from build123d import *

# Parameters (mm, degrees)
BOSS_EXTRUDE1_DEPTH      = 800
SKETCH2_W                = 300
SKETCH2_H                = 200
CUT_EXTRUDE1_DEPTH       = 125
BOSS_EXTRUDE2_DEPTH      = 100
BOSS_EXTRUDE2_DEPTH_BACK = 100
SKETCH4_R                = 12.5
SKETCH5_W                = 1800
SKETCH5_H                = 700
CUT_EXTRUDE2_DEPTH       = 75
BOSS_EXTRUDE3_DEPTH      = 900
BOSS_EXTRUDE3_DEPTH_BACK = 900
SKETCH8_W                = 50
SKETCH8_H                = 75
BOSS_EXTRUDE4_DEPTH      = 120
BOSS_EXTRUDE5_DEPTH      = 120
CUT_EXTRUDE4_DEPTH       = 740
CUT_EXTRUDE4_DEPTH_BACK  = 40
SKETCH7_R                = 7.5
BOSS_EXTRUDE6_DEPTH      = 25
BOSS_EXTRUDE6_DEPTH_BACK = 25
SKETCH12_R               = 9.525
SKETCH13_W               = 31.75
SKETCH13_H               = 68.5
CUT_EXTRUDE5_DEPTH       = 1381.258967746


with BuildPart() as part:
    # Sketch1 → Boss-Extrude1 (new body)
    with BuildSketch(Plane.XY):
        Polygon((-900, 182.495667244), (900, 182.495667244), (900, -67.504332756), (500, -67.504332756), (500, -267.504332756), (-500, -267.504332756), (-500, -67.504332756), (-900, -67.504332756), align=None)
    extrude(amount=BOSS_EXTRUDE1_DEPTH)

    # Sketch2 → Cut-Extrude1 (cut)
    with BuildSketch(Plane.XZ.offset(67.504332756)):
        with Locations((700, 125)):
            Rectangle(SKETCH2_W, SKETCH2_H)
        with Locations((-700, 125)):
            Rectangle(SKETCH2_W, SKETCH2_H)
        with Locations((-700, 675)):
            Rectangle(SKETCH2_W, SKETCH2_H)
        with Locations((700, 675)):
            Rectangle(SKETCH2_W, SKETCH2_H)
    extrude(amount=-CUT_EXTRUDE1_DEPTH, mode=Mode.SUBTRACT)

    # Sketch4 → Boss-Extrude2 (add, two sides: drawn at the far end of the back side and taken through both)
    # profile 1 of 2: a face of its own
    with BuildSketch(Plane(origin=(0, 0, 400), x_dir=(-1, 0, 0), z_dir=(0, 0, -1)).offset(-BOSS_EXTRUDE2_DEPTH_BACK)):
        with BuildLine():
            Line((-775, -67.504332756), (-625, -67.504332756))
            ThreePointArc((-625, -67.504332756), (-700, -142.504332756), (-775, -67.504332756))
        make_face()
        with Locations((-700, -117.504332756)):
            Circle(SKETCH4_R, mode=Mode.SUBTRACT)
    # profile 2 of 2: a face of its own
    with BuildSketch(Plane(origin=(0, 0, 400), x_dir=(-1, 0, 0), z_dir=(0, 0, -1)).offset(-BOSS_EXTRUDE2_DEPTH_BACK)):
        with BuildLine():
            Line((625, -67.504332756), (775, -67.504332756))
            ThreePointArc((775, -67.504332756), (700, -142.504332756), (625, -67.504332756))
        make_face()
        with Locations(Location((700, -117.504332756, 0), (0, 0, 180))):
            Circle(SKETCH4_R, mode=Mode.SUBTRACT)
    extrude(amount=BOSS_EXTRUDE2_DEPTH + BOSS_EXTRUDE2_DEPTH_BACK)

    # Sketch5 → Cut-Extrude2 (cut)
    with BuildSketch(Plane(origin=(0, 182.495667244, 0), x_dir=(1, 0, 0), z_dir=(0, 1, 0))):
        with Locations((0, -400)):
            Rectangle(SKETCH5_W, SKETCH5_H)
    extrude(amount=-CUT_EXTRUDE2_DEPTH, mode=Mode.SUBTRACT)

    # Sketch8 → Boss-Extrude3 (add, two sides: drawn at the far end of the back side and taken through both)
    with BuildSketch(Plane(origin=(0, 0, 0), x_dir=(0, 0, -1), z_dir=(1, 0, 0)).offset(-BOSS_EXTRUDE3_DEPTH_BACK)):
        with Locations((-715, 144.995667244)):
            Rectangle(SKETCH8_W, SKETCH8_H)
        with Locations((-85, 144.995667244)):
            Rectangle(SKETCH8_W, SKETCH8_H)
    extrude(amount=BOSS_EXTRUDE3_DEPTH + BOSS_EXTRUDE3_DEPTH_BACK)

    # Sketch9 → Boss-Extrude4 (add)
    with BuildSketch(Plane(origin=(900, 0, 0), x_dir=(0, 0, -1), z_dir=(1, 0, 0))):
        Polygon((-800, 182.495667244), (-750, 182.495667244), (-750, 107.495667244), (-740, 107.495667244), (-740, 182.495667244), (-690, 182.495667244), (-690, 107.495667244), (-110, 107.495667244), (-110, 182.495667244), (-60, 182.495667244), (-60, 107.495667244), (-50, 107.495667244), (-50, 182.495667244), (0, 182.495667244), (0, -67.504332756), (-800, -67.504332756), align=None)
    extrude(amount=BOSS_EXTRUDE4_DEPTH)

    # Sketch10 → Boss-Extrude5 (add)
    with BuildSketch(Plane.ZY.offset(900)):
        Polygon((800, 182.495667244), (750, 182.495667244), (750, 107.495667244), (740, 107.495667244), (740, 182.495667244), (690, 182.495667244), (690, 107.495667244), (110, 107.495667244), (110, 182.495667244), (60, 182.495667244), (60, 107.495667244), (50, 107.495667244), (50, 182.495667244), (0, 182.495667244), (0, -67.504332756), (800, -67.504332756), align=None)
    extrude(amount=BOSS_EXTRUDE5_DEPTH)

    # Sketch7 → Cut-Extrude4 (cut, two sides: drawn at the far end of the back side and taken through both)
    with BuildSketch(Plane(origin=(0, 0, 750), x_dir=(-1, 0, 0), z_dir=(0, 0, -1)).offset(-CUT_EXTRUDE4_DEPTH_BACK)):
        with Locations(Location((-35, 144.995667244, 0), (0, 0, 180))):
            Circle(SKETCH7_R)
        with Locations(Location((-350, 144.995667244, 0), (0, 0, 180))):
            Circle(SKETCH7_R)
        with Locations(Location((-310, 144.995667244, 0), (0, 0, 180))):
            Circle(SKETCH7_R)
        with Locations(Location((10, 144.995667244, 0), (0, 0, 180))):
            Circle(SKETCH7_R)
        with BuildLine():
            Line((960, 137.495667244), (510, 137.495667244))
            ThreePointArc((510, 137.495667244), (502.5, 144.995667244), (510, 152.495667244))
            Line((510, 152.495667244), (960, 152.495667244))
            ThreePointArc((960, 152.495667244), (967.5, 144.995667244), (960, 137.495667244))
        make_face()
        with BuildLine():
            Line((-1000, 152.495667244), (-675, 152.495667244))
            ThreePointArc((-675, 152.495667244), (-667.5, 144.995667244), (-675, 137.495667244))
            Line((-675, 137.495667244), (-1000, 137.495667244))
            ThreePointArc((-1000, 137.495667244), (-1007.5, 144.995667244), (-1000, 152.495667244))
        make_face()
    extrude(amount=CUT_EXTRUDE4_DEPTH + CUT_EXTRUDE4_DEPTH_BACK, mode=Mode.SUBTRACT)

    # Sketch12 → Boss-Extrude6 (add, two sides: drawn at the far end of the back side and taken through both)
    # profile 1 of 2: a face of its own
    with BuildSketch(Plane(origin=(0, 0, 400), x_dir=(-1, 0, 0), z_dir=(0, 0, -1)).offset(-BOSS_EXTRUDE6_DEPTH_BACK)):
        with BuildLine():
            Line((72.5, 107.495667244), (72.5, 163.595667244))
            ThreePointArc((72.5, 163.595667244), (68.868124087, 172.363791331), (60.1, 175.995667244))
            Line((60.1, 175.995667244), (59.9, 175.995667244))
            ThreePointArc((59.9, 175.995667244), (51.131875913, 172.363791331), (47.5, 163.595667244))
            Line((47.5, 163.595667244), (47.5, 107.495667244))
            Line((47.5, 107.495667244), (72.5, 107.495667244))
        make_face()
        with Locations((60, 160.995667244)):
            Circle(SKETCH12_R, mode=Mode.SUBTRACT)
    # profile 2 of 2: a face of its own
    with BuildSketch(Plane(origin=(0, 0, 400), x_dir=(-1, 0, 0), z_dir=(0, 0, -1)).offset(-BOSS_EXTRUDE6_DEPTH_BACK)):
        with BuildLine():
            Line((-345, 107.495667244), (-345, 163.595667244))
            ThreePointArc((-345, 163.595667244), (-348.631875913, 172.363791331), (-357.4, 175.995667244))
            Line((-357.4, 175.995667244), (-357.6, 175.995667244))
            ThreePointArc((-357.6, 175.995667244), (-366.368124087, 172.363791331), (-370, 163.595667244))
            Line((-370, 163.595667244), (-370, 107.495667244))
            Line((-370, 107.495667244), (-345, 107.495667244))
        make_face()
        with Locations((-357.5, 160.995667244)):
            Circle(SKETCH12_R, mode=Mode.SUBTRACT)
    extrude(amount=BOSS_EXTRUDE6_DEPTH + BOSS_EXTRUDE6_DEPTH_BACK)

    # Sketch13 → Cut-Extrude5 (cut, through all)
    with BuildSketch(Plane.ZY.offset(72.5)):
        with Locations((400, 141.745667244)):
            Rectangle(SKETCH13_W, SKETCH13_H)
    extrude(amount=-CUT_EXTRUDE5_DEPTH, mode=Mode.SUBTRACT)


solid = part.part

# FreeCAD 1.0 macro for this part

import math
import FreeCAD as App
import Part
import Sketcher
from FreeCAD import Vector
Q = App.Units.Quantity

doc = App.newDocument("Part")
body = doc.addObject("PartDesign::Body", "Body")

# Sketch on XY plane
sketch1 = doc.addObject("Sketcher::SketchObject", "Sketch")
body.addObject(sketch1)
sketch1.AttachmentSupport = (doc.XY_Plane, [""])
sketch1.MapMode = "FlatFace"
sketch1.addGeometry(Part.LineSegment(Vector(900, 182, 0), Vector(-900, 182, 0)), False)
sketch1.addGeometry(Part.LineSegment(Vector(-900, 182, 0), Vector(-900, -68, 0)), False)
sketch1.addGeometry(Part.LineSegment(Vector(-900, -68, 0), Vector(-500, -68, 0)), False)
sketch1.addGeometry(Part.LineSegment(Vector(-500, -68, 0), Vector(-500, -268, 0)), False)
sketch1.addGeometry(Part.LineSegment(Vector(-500, -268, 0), Vector(500, -268, 0)), False)
sketch1.addGeometry(Part.LineSegment(Vector(500, -268, 0), Vector(500, -68, 0)), False)
sketch1.addGeometry(Part.LineSegment(Vector(500, -68, 0), Vector(900, -68, 0)), False)
sketch1.addGeometry(Part.LineSegment(Vector(900, -68, 0), Vector(900, 182, 0)), False)
sketch1.addConstraint(Sketcher.Constraint("Coincident", 0, 2, 1, 1))
sketch1.addConstraint(Sketcher.Constraint("Coincident", 1, 2, 2, 1))
sketch1.addConstraint(Sketcher.Constraint("Coincident", 2, 2, 3, 1))
sketch1.addConstraint(Sketcher.Constraint("Coincident", 3, 2, 4, 1))
sketch1.addConstraint(Sketcher.Constraint("Coincident", 4, 2, 5, 1))
sketch1.addConstraint(Sketcher.Constraint("Coincident", 5, 2, 6, 1))
sketch1.addConstraint(Sketcher.Constraint("Coincident", 6, 2, 7, 1))
sketch1.addConstraint(Sketcher.Constraint("Coincident", 7, 2, 0, 1))
sketch1.addConstraint(Sketcher.Constraint("Horizontal", 0))
sketch1.addConstraint(Sketcher.Constraint("Vertical", 1))
sketch1.addConstraint(Sketcher.Constraint("Horizontal", 2))
sketch1.addConstraint(Sketcher.Constraint("Vertical", 3))
sketch1.addConstraint(Sketcher.Constraint("Horizontal", 4))
sketch1.addConstraint(Sketcher.Constraint("Vertical", 5))
sketch1.addConstraint(Sketcher.Constraint("Horizontal", 6))
sketch1.addConstraint(Sketcher.Constraint("Vertical", 7))
sketch1.addConstraint(Sketcher.Constraint("Symmetric", 2, 2, 5, 2, -2))
sketch1.addConstraint(Sketcher.Constraint("Equal", 2, 6))
sketch1.addConstraint(Sketcher.Constraint("DistanceX", 0, 2, 0, 1, Q("1800 mm")))
sketch1.addConstraint(Sketcher.Constraint("DistanceX", 2, 1, 2, 2, Q("400 mm")))
sketch1.addConstraint(Sketcher.Constraint("DistanceY", 1, 2, 1, 1, Q("250 mm")))
sketch1.addConstraint(Sketcher.Constraint("DistanceY", 3, 2, 3, 1, Q("200 mm")))
sketch1.addConstraint(Sketcher.Constraint("DistanceY", -1, 1, 0, 2, Q("182.495667 mm")))
pad1 = doc.addObject("PartDesign::Pad", "Pad")
body.addObject(pad1)
pad1.Profile = sketch1
pad1.Length = 800

# Sketch on XZ plane
sketch2 = doc.addObject("Sketcher::SketchObject", "Sketch001")
body.addObject(sketch2)
sketch2.AttachmentSupport = (doc.XZ_Plane, [""])
sketch2.MapMode = "FlatFace"
sketch2.AttachmentOffset = App.Placement(Vector(0, 0, 67.504333), App.Rotation())
sketch2.addGeometry(Part.LineSegment(Vector(550, 225, 0), Vector(550, 25, 0)), False)
sketch2.addGeometry(Part.LineSegment(Vector(550, 25, 0), Vector(850, 25, 0)), False)
sketch2.addGeometry(Part.LineSegment(Vector(850, 25, 0), Vector(850, 225, 0)), False)
sketch2.addGeometry(Part.LineSegment(Vector(850, 225, 0), Vector(550, 225, 0)), False)
sketch2.addGeometry(Part.LineSegment(Vector(-850, 225, 0), Vector(-850, 25, 0)), False)
sketch2.addGeometry(Part.LineSegment(Vector(-850, 25, 0), Vector(-550, 25, 0)), False)
sketch2.addGeometry(Part.LineSegment(Vector(-550, 25, 0), Vector(-550, 225, 0)), False)
sketch2.addGeometry(Part.LineSegment(Vector(-550, 225, 0), Vector(-850, 225, 0)), False)
sketch2.addGeometry(Part.LineSegment(Vector(-850, 775, 0), Vector(-850, 575, 0)), False)
sketch2.addGeometry(Part.LineSegment(Vector(-850, 575, 0), Vector(-550, 575, 0)), False)
sketch2.addGeometry(Part.LineSegment(Vector(-550, 575, 0), Vector(-550, 775, 0)), False)
sketch2.addGeometry(Part.LineSegment(Vector(-550, 775, 0), Vector(-850, 775, 0)), False)
sketch2.addGeometry(Part.LineSegment(Vector(550, 775, 0), Vector(550, 575, 0)), False)
sketch2.addGeometry(Part.LineSegment(Vector(550, 575, 0), Vector(850, 575, 0)), False)
sketch2.addGeometry(Part.LineSegment(Vector(850, 575, 0), Vector(850, 775, 0)), False)
sketch2.addGeometry(Part.LineSegment(Vector(850, 775, 0), Vector(550, 775, 0)), False)
sketch2.addConstraint(Sketcher.Constraint("Coincident", 0, 2, 1, 1))
sketch2.addConstraint(Sketcher.Constraint("Coincident", 1, 2, 2, 1))
sketch2.addConstraint(Sketcher.Constraint("Coincident", 2, 2, 3, 1))
sketch2.addConstraint(Sketcher.Constraint("Coincident", 3, 2, 0, 1))
sketch2.addConstraint(Sketcher.Constraint("Coincident", 4, 2, 5, 1))
sketch2.addConstraint(Sketcher.Constraint("Coincident", 5, 2, 6, 1))
sketch2.addConstraint(Sketcher.Constraint("Coincident", 6, 2, 7, 1))
sketch2.addConstraint(Sketcher.Constraint("Coincident", 7, 2, 4, 1))
sketch2.addConstraint(Sketcher.Constraint("Coincident", 8, 2, 9, 1))
sketch2.addConstraint(Sketcher.Constraint("Coincident", 9, 2, 10, 1))
sketch2.addConstraint(Sketcher.Constraint("Coincident", 10, 2, 11, 1))
sketch2.addConstraint(Sketcher.Constraint("Coincident", 11, 2, 8, 1))
sketch2.addConstraint(Sketcher.Constraint("Coincident", 12, 2, 13, 1))
sketch2.addConstraint(Sketcher.Constraint("Coincident", 13, 2, 14, 1))
sketch2.addConstraint(Sketcher.Constraint("Coincident", 14, 2, 15, 1))
sketch2.addConstraint(Sketcher.Constraint("Coincident", 15, 2, 12, 1))
sketch2.addConstraint(Sketcher.Constraint("Vertical", 0))
sketch2.addConstraint(Sketcher.Constraint("Horizontal", 1))
sketch2.addConstraint(Sketcher.Constraint("Vertical", 2))
sketch2.addConstraint(Sketcher.Constraint("Horizontal", 3))
sketch2.addConstraint(Sketcher.Constraint("Vertical", 4))
sketch2.addConstraint(Sketcher.Constraint("Horizontal", 5))
sketch2.addConstraint(Sketcher.Constraint("Vertical", 6))
sketch2.addConstraint(Sketcher.Constraint("Horizontal", 7))
sketch2.addConstraint(Sketcher.Constraint("Vertical", 8))
sketch2.addConstraint(Sketcher.Constraint("Horizontal", 9))
sketch2.addConstraint(Sketcher.Constraint("Vertical", 10))
sketch2.addConstraint(Sketcher.Constraint("Horizontal", 11))
sketch2.addConstraint(Sketcher.Constraint("Vertical", 12))
sketch2.addConstraint(Sketcher.Constraint("Horizontal", 13))
sketch2.addConstraint(Sketcher.Constraint("Vertical", 14))
sketch2.addConstraint(Sketcher.Constraint("Horizontal", 15))
sketch2.addConstraint(Sketcher.Constraint("Symmetric", 1, 2, 4, 2, -2))
sketch2.addConstraint(Sketcher.Constraint("Symmetric", 3, 2, 6, 2, -2))
sketch2.addConstraint(Sketcher.Constraint("Symmetric", 9, 2, 12, 2, -2))
sketch2.addConstraint(Sketcher.Constraint("Symmetric", 11, 2, 14, 2, -2))
sketch2.addConstraint(Sketcher.Constraint("Vertical", 7, 2, 8, 2))
sketch2.addConstraint(Sketcher.Constraint("Vertical", 6, 2, 9, 2))
sketch2.addConstraint(Sketcher.Constraint("Equal", 6, 8))
sketch2.addConstraint(Sketcher.Constraint("DistanceX", 1, 1, 1, 2, Q("300 mm")))
sketch2.addConstraint(Sketcher.Constraint("DistanceY", 0, 2, 0, 1, Q("200 mm")))
sketch2.addConstraint(Sketcher.Constraint("DistanceX", -1, 1, 0, 2, Q("550 mm")))
sketch2.addConstraint(Sketcher.Constraint("DistanceY", -1, 1, 0, 2, Q("25 mm")))
sketch2.addConstraint(Sketcher.Constraint("DistanceY", -1, 1, 8, 2, Q("575 mm")))
pocket1 = doc.addObject("PartDesign::Pocket", "Pocket")
body.addObject(pocket1)
pocket1.Profile = sketch2
pocket1.Length = 125

# Sketch on XY plane
sketch3 = doc.addObject("Sketcher::SketchObject", "Sketch002")
body.addObject(sketch3)
sketch3.AttachmentSupport = (doc.XY_Plane, [""])
sketch3.MapMode = "FlatFace"
sketch3.AttachmentOffset = App.Placement(Vector(0, 0, 400), App.Rotation())
sketch3.addGeometry(Part.LineSegment(Vector(625, -68, 0), Vector(775, -68, 0)), False)
sketch3.addGeometry(Part.ArcOfCircle(Part.Circle(Vector(700, -68, 0), Vector(0, 0, 1), 75), math.radians(180), math.radians(360)), False)
sketch3.addGeometry(Part.Circle(Vector(700, -118, 0), Vector(0, 0, 1), 12), False)
sketch3.addGeometry(Part.LineSegment(Vector(-775, -68, 0), Vector(-625, -68, 0)), False)
sketch3.addGeometry(Part.ArcOfCircle(Part.Circle(Vector(-700, -68, 0), Vector(0, 0, 1), 75), math.radians(180), math.radians(360)), False)
sketch3.addGeometry(Part.Circle(Vector(-700, -118, 0), Vector(0, 0, 1), 12), False)
sketch3.addConstraint(Sketcher.Constraint("Coincident", 0, 1, 1, 1))
sketch3.addConstraint(Sketcher.Constraint("Coincident", 1, 2, 0, 2))
sketch3.addConstraint(Sketcher.Constraint("Coincident", 3, 1, 4, 1))
sketch3.addConstraint(Sketcher.Constraint("Coincident", 4, 2, 3, 2))
sketch3.addConstraint(Sketcher.Constraint("Horizontal", 0))
sketch3.addConstraint(Sketcher.Constraint("Horizontal", 3))
sketch3.addConstraint(Sketcher.Constraint("Equal", 1, 4))
sketch3.addConstraint(Sketcher.Constraint("Equal", 2, 5))
sketch3.addConstraint(Sketcher.Constraint("Symmetric", 1, 3, 4, 3, -2))
sketch3.addConstraint(Sketcher.Constraint("Symmetric", 2, 3, 5, 3, -2))
sketch3.addConstraint(Sketcher.Constraint("Horizontal", 4, 3, 0, 1))
sketch3.addConstraint(Sketcher.Constraint("Horizontal", 1, 2, 3, 1))
sketch3.addConstraint(Sketcher.Constraint("Vertical", 1, 3, 2, 3))
sketch3.addConstraint(Sketcher.Constraint("Diameter", 2, Q("25 mm")))
sketch3.addConstraint(Sketcher.Constraint("Radius", 1, Q("75 mm")))
sketch3.addConstraint(Sketcher.Constraint("DistanceX", -1, 1, 1, 3, Q("700 mm")))
sketch3.addConstraint(Sketcher.Constraint("DistanceY", 2, 3, 1, 3, Q("50 mm")))
sketch3.addConstraint(Sketcher.Constraint("DistanceY", 1, 3, -1, 1, Q("67.504333 mm")))
pad2 = doc.addObject("PartDesign::Pad", "Pad001")
body.addObject(pad2)
pad2.Profile = sketch3
pad2.Type = "TwoLengths"
pad2.Length = 100
pad2.Length2 = 100
pad2.Reversed = True

# Sketch on XZ plane
sketch4 = doc.addObject("Sketcher::SketchObject", "Sketch003")
body.addObject(sketch4)
sketch4.AttachmentSupport = (doc.XZ_Plane, [""])
sketch4.MapMode = "FlatFace"
sketch4.AttachmentOffset = App.Placement(Vector(0, 0, -182.495667), App.Rotation())
sketch4.addGeometry(Part.LineSegment(Vector(-900, 50, 0), Vector(-900, 750, 0)), False)
sketch4.addGeometry(Part.LineSegment(Vector(-900, 750, 0), Vector(900, 750, 0)), False)
sketch4.addGeometry(Part.LineSegment(Vector(900, 750, 0), Vector(900, 50, 0)), False)
sketch4.addGeometry(Part.LineSegment(Vector(900, 50, 0), Vector(-900, 50, 0)), False)
sketch4.addConstraint(Sketcher.Constraint("Coincident", 0, 2, 1, 1))
sketch4.addConstraint(Sketcher.Constraint("Coincident", 1, 2, 2, 1))
sketch4.addConstraint(Sketcher.Constraint("Coincident", 2, 2, 3, 1))
sketch4.addConstraint(Sketcher.Constraint("Coincident", 3, 2, 0, 1))
sketch4.addConstraint(Sketcher.Constraint("Vertical", 0))
sketch4.addConstraint(Sketcher.Constraint("Horizontal", 1))
sketch4.addConstraint(Sketcher.Constraint("Vertical", 2))
sketch4.addConstraint(Sketcher.Constraint("Horizontal", 3))
sketch4.addConstraint(Sketcher.Constraint("DistanceX", 1, 1, 1, 2, Q("1800 mm")))
sketch4.addConstraint(Sketcher.Constraint("DistanceY", 0, 1, 0, 2, Q("700 mm")))
sketch4.addConstraint(Sketcher.Constraint("DistanceX", 0, 2, -1, 1, Q("900 mm")))
sketch4.addConstraint(Sketcher.Constraint("DistanceY", -1, 1, 0, 2, Q("750 mm")))
pocket2 = doc.addObject("PartDesign::Pocket", "Pocket001")
body.addObject(pocket2)
pocket2.Profile = sketch4
pocket2.Length = 75
pocket2.Reversed = True

# Sketch on YZ plane
sketch5 = doc.addObject("Sketcher::SketchObject", "Sketch004")
body.addObject(sketch5)
sketch5.AttachmentSupport = (doc.YZ_Plane, [""])
sketch5.MapMode = "FlatFace"
sketch5.addGeometry(Part.LineSegment(Vector(182, 740, 0), Vector(107, 740, 0)), False)
sketch5.addGeometry(Part.LineSegment(Vector(107, 740, 0), Vector(107, 690, 0)), False)
sketch5.addGeometry(Part.LineSegment(Vector(107, 690, 0), Vector(182, 690, 0)), False)
sketch5.addGeometry(Part.LineSegment(Vector(182, 690, 0), Vector(182, 740, 0)), False)
sketch5.addGeometry(Part.LineSegment(Vector(182, 110, 0), Vector(107, 110, 0)), False)
sketch5.addGeometry(Part.LineSegment(Vector(107, 110, 0), Vector(107, 60, 0)), False)
sketch5.addGeometry(Part.LineSegment(Vector(107, 60, 0), Vector(182, 60, 0)), False)
sketch5.addGeometry(Part.LineSegment(Vector(182, 60, 0), Vector(182, 110, 0)), False)
sketch5.addConstraint(Sketcher.Constraint("Coincident", 0, 2, 1, 1))
sketch5.addConstraint(Sketcher.Constraint("Coincident", 1, 2, 2, 1))
sketch5.addConstraint(Sketcher.Constraint("Coincident", 2, 2, 3, 1))
sketch5.addConstraint(Sketcher.Constraint("Coincident", 3, 2, 0, 1))
sketch5.addConstraint(Sketcher.Constraint("Coincident", 4, 2, 5, 1))
sketch5.addConstraint(Sketcher.Constraint("Coincident", 5, 2, 6, 1))
sketch5.addConstraint(Sketcher.Constraint("Coincident", 6, 2, 7, 1))
sketch5.addConstraint(Sketcher.Constraint("Coincident", 7, 2, 4, 1))
sketch5.addConstraint(Sketcher.Constraint("Horizontal", 0))
sketch5.addConstraint(Sketcher.Constraint("Vertical", 1))
sketch5.addConstraint(Sketcher.Constraint("Horizontal", 2))
sketch5.addConstraint(Sketcher.Constraint("Vertical", 3))
sketch5.addConstraint(Sketcher.Constraint("Horizontal", 4))
sketch5.addConstraint(Sketcher.Constraint("Vertical", 5))
sketch5.addConstraint(Sketcher.Constraint("Horizontal", 6))
sketch5.addConstraint(Sketcher.Constraint("Vertical", 7))
sketch5.addConstraint(Sketcher.Constraint("Vertical", 1, 2, 4, 2))
sketch5.addConstraint(Sketcher.Constraint("Vertical", 3, 2, 6, 2))
sketch5.addConstraint(Sketcher.Constraint("Equal", 3, 5))
sketch5.addConstraint(Sketcher.Constraint("DistanceX", 0, 2, 0, 1, Q("75 mm")))
sketch5.addConstraint(Sketcher.Constraint("DistanceY", 1, 2, 1, 1, Q("50 mm")))
sketch5.addConstraint(Sketcher.Constraint("DistanceY", -1, 1, 0, 2, Q("740 mm")))
sketch5.addConstraint(Sketcher.Constraint("DistanceY", -1, 1, 4, 2, Q("110 mm")))
sketch5.addConstraint(Sketcher.Constraint("DistanceX", -1, 1, 0, 2, Q("107.495667 mm")))
pad3 = doc.addObject("PartDesign::Pad", "Pad002")
body.addObject(pad3)
pad3.Profile = sketch5
pad3.Type = "TwoLengths"
pad3.Length = 900
pad3.Length2 = 900

# Sketch on YZ plane
sketch6 = doc.addObject("Sketcher::SketchObject", "Sketch005")
body.addObject(sketch6)
sketch6.AttachmentSupport = (doc.YZ_Plane, [""])
sketch6.MapMode = "FlatFace"
sketch6.AttachmentOffset = App.Placement(Vector(0, 0, 900), App.Rotation())
sketch6.addGeometry(Part.LineSegment(Vector(182, 750, 0), Vector(182, 800, 0)), False)
sketch6.addGeometry(Part.LineSegment(Vector(182, 800, 0), Vector(-68, 800, 0)), False)
sketch6.addGeometry(Part.LineSegment(Vector(-68, 800, 0), Vector(-68, 0, 0)), False)
sketch6.addGeometry(Part.LineSegment(Vector(-68, 0, 0), Vector(182, 0, 0)), False)
sketch6.addGeometry(Part.LineSegment(Vector(182, 0, 0), Vector(182, 50, 0)), False)
sketch6.addGeometry(Part.LineSegment(Vector(182, 50, 0), Vector(107, 50, 0)), False)
sketch6.addGeometry(Part.LineSegment(Vector(107, 50, 0), Vector(107, 60, 0)), False)
sketch6.addGeometry(Part.LineSegment(Vector(107, 60, 0), Vector(182, 60, 0)), False)
sketch6.addGeometry(Part.LineSegment(Vector(182, 60, 0), Vector(182, 110, 0)), False)
sketch6.addGeometry(Part.LineSegment(Vector(182, 110, 0), Vector(107, 110, 0)), False)
sketch6.addGeometry(Part.LineSegment(Vector(107, 110, 0), Vector(107, 690, 0)), False)
sketch6.addGeometry(Part.LineSegment(Vector(107, 690, 0), Vector(182, 690, 0)), False)
sketch6.addGeometry(Part.LineSegment(Vector(182, 690, 0), Vector(182, 740, 0)), False)
sketch6.addGeometry(Part.LineSegment(Vector(182, 740, 0), Vector(107, 740, 0)), False)
sketch6.addGeometry(Part.LineSegment(Vector(107, 740, 0), Vector(107, 750, 0)), False)
sketch6.addGeometry(Part.LineSegment(Vector(107, 750, 0), Vector(182, 750, 0)), False)
sketch6.addConstraint(Sketcher.Constraint("Coincident", 0, 2, 1, 1))
sketch6.addConstraint(Sketcher.Constraint("Coincident", 1, 2, 2, 1))
sketch6.addConstraint(Sketcher.Constraint("Coincident", 2, 2, 3, 1))
sketch6.addConstraint(Sketcher.Constraint("Coincident", 3, 2, 4, 1))
sketch6.addConstraint(Sketcher.Constraint("Coincident", 4, 2, 5, 1))
sketch6.addConstraint(Sketcher.Constraint("Coincident", 5, 2, 6, 1))
sketch6.addConstraint(Sketcher.Constraint("Coincident", 6, 2, 7, 1))
sketch6.addConstraint(Sketcher.Constraint("Coincident", 7, 2, 8, 1))
sketch6.addConstraint(Sketcher.Constraint("Coincident", 8, 2, 9, 1))
sketch6.addConstraint(Sketcher.Constraint("Coincident", 9, 2, 10, 1))
sketch6.addConstraint(Sketcher.Constraint("Coincident", 10, 2, 11, 1))
sketch6.addConstraint(Sketcher.Constraint("Coincident", 11, 2, 12, 1))
sketch6.addConstraint(Sketcher.Constraint("Coincident", 12, 2, 13, 1))
sketch6.addConstraint(Sketcher.Constraint("Coincident", 13, 2, 14, 1))
sketch6.addConstraint(Sketcher.Constraint("Coincident", 14, 2, 15, 1))
sketch6.addConstraint(Sketcher.Constraint("Coincident", 15, 2, 0, 1))
sketch6.addConstraint(Sketcher.Constraint("Vertical", 0))
sketch6.addConstraint(Sketcher.Constraint("Horizontal", 1))
sketch6.addConstraint(Sketcher.Constraint("Vertical", 2))
sketch6.addConstraint(Sketcher.Constraint("Horizontal", 3))
sketch6.addConstraint(Sketcher.Constraint("Vertical", 4))
sketch6.addConstraint(Sketcher.Constraint("Horizontal", 5))
sketch6.addConstraint(Sketcher.Constraint("Vertical", 6))
sketch6.addConstraint(Sketcher.Constraint("Horizontal", 7))
sketch6.addConstraint(Sketcher.Constraint("Vertical", 8))
sketch6.addConstraint(Sketcher.Constraint("Horizontal", 9))
sketch6.addConstraint(Sketcher.Constraint("Vertical", 10))
sketch6.addConstraint(Sketcher.Constraint("Horizontal", 11))
sketch6.addConstraint(Sketcher.Constraint("Vertical", 12))
sketch6.addConstraint(Sketcher.Constraint("Horizontal", 13))
sketch6.addConstraint(Sketcher.Constraint("Vertical", 14))
sketch6.addConstraint(Sketcher.Constraint("Horizontal", 15))
sketch6.addConstraint(Sketcher.Constraint("PointOnObject", 2, 2, -1))
sketch6.addConstraint(Sketcher.Constraint("Vertical", 0, 2, 3, 2))
sketch6.addConstraint(Sketcher.Constraint("Vertical", 4, 2, 7, 2))
sketch6.addConstraint(Sketcher.Constraint("Vertical", 6, 2, 9, 2))
sketch6.addConstraint(Sketcher.Constraint("Vertical", 8, 2, 11, 2))
sketch6.addConstraint(Sketcher.Constraint("Vertical", 10, 2, 13, 2))
sketch6.addConstraint(Sketcher.Constraint("Equal", 0, 4))
sketch6.addConstraint(Sketcher.Constraint("Equal", 4, 8))
sketch6.addConstraint(Sketcher.Constraint("Equal", 8, 12))
sketch6.addConstraint(Sketcher.Constraint("Equal", 6, 14))
sketch6.addConstraint(Sketcher.Constraint("DistanceX", 1, 2, 1, 1, Q("250 mm")))
sketch6.addConstraint(Sketcher.Constraint("DistanceX", 5, 2, 5, 1, Q("75 mm")))
sketch6.addConstraint(Sketcher.Constraint("DistanceY", 0, 1, 0, 2, Q("50 mm")))
sketch6.addConstraint(Sketcher.Constraint("DistanceY", 2, 2, 2, 1, Q("800 mm")))
sketch6.addConstraint(Sketcher.Constraint("DistanceY", 6, 1, 6, 2, Q("10 mm")))
sketch6.addConstraint(Sketcher.Constraint("DistanceX", -1, 1, 0, 2, Q("182.495667 mm")))
pad4 = doc.addObject("PartDesign::Pad", "Pad003")
body.addObject(pad4)
pad4.Profile = sketch6
pad4.Length = 120

# Sketch on YZ plane
sketch7 = doc.addObject("Sketcher::SketchObject", "Sketch006")
body.addObject(sketch7)
sketch7.AttachmentSupport = (doc.YZ_Plane, [""])
sketch7.MapMode = "FlatFace"
sketch7.AttachmentOffset = App.Placement(Vector(0, 0, -900), App.Rotation())
sketch7.addGeometry(Part.LineSegment(Vector(182, 800, 0), Vector(182, 750, 0)), False)
sketch7.addGeometry(Part.LineSegment(Vector(182, 750, 0), Vector(107, 750, 0)), False)
sketch7.addGeometry(Part.LineSegment(Vector(107, 750, 0), Vector(107, 740, 0)), False)
sketch7.addGeometry(Part.LineSegment(Vector(107, 740, 0), Vector(182, 740, 0)), False)
sketch7.addGeometry(Part.LineSegment(Vector(182, 740, 0), Vector(182, 690, 0)), False)
sketch7.addGeometry(Part.LineSegment(Vector(182, 690, 0), Vector(107, 690, 0)), False)
sketch7.addGeometry(Part.LineSegment(Vector(107, 690, 0), Vector(107, 110, 0)), False)
sketch7.addGeometry(Part.LineSegment(Vector(107, 110, 0), Vector(182, 110, 0)), False)
sketch7.addGeometry(Part.LineSegment(Vector(182, 110, 0), Vector(182, 60, 0)), False)
sketch7.addGeometry(Part.LineSegment(Vector(182, 60, 0), Vector(107, 60, 0)), False)
sketch7.addGeometry(Part.LineSegment(Vector(107, 60, 0), Vector(107, 50, 0)), False)
sketch7.addGeometry(Part.LineSegment(Vector(107, 50, 0), Vector(182, 50, 0)), False)
sketch7.addGeometry(Part.LineSegment(Vector(182, 50, 0), Vector(182, 0, 0)), False)
sketch7.addGeometry(Part.LineSegment(Vector(182, 0, 0), Vector(-68, 0, 0)), False)
sketch7.addGeometry(Part.LineSegment(Vector(-68, 0, 0), Vector(-68, 800, 0)), False)
sketch7.addGeometry(Part.LineSegment(Vector(-68, 800, 0), Vector(182, 800, 0)), False)
sketch7.addConstraint(Sketcher.Constraint("Coincident", 0, 2, 1, 1))
sketch7.addConstraint(Sketcher.Constraint("Coincident", 1, 2, 2, 1))
sketch7.addConstraint(Sketcher.Constraint("Coincident", 2, 2, 3, 1))
sketch7.addConstraint(Sketcher.Constraint("Coincident", 3, 2, 4, 1))
sketch7.addConstraint(Sketcher.Constraint("Coincident", 4, 2, 5, 1))
sketch7.addConstraint(Sketcher.Constraint("Coincident", 5, 2, 6, 1))
sketch7.addConstraint(Sketcher.Constraint("Coincident", 6, 2, 7, 1))
sketch7.addConstraint(Sketcher.Constraint("Coincident", 7, 2, 8, 1))
sketch7.addConstraint(Sketcher.Constraint("Coincident", 8, 2, 9, 1))
sketch7.addConstraint(Sketcher.Constraint("Coincident", 9, 2, 10, 1))
sketch7.addConstraint(Sketcher.Constraint("Coincident", 10, 2, 11, 1))
sketch7.addConstraint(Sketcher.Constraint("Coincident", 11, 2, 12, 1))
sketch7.addConstraint(Sketcher.Constraint("Coincident", 12, 2, 13, 1))
sketch7.addConstraint(Sketcher.Constraint("Coincident", 13, 2, 14, 1))
sketch7.addConstraint(Sketcher.Constraint("Coincident", 14, 2, 15, 1))
sketch7.addConstraint(Sketcher.Constraint("Coincident", 15, 2, 0, 1))
sketch7.addConstraint(Sketcher.Constraint("Vertical", 0))
sketch7.addConstraint(Sketcher.Constraint("Horizontal", 1))
sketch7.addConstraint(Sketcher.Constraint("Vertical", 2))
sketch7.addConstraint(Sketcher.Constraint("Horizontal", 3))
sketch7.addConstraint(Sketcher.Constraint("Vertical", 4))
sketch7.addConstraint(Sketcher.Constraint("Horizontal", 5))
sketch7.addConstraint(Sketcher.Constraint("Vertical", 6))
sketch7.addConstraint(Sketcher.Constraint("Horizontal", 7))
sketch7.addConstraint(Sketcher.Constraint("Vertical", 8))
sketch7.addConstraint(Sketcher.Constraint("Horizontal", 9))
sketch7.addConstraint(Sketcher.Constraint("Vertical", 10))
sketch7.addConstraint(Sketcher.Constraint("Horizontal", 11))
sketch7.addConstraint(Sketcher.Constraint("Vertical", 12))
sketch7.addConstraint(Sketcher.Constraint("Horizontal", 13))
sketch7.addConstraint(Sketcher.Constraint("Vertical", 14))
sketch7.addConstraint(Sketcher.Constraint("Horizontal", 15))
sketch7.addConstraint(Sketcher.Constraint("PointOnObject", 12, 2, -1))
sketch7.addConstraint(Sketcher.Constraint("Vertical", 0, 2, 3, 2))
sketch7.addConstraint(Sketcher.Constraint("Vertical", 2, 2, 5, 2))
sketch7.addConstraint(Sketcher.Constraint("Vertical", 4, 2, 7, 2))
sketch7.addConstraint(Sketcher.Constraint("Vertical", 6, 2, 9, 2))
sketch7.addConstraint(Sketcher.Constraint("Vertical", 8, 2, 11, 2))
sketch7.addConstraint(Sketcher.Constraint("Equal", 0, 4))
sketch7.addConstraint(Sketcher.Constraint("Equal", 4, 8))
sketch7.addConstraint(Sketcher.Constraint("Equal", 2, 10))
sketch7.addConstraint(Sketcher.Constraint("Equal", 8, 12))
sketch7.addConstraint(Sketcher.Constraint("DistanceX", 1, 2, 1, 1, Q("75 mm")))
sketch7.addConstraint(Sketcher.Constraint("DistanceX", 13, 2, 13, 1, Q("250 mm")))
sketch7.addConstraint(Sketcher.Constraint("DistanceY", 0, 2, 0, 1, Q("50 mm")))
sketch7.addConstraint(Sketcher.Constraint("DistanceY", 2, 2, 2, 1, Q("10 mm")))
sketch7.addConstraint(Sketcher.Constraint("DistanceY", 6, 2, 6, 1, Q("580 mm")))
sketch7.addConstraint(Sketcher.Constraint("DistanceX", -1, 1, 0, 2, Q("182.495667 mm")))
pad5 = doc.addObject("PartDesign::Pad", "Pad004")
body.addObject(pad5)
pad5.Profile = sketch7
pad5.Length = 120
pad5.Reversed = True

# Sketch on XY plane
sketch8 = doc.addObject("Sketcher::SketchObject", "Sketch007")
body.addObject(sketch8)
sketch8.AttachmentSupport = (doc.XY_Plane, [""])
sketch8.MapMode = "FlatFace"
sketch8.AttachmentOffset = App.Placement(Vector(0, 0, 750), App.Rotation())
sketch8.addGeometry(Part.Circle(Vector(35, 145, 0), Vector(0, 0, 1), 8), False)
sketch8.addGeometry(Part.Circle(Vector(350, 145, 0), Vector(0, 0, 1), 8), False)
sketch8.addGeometry(Part.Circle(Vector(310, 145, 0), Vector(0, 0, 1), 8), False)
sketch8.addGeometry(Part.Circle(Vector(-10, 145, 0), Vector(0, 0, 1), 8), False)
sketch8.addGeometry(Part.LineSegment(Vector(-510, 137, 0), Vector(-960, 137, 0)), False)
sketch8.addGeometry(Part.ArcOfCircle(Part.Circle(Vector(-960, 145, 0), Vector(0, 0, 1), 8), math.radians(90), math.radians(270)), False)
sketch8.addGeometry(Part.LineSegment(Vector(-960, 152, 0), Vector(-510, 152, 0)), False)
sketch8.addGeometry(Part.ArcOfCircle(Part.Circle(Vector(-510, 145, 0), Vector(0, 0, 1), 8), math.radians(-90), math.radians(90)), False)
sketch8.addGeometry(Part.LineSegment(Vector(675, 152, 0), Vector(1000, 152, 0)), False)
sketch8.addGeometry(Part.ArcOfCircle(Part.Circle(Vector(1000, 145, 0), Vector(0, 0, 1), 8), math.radians(-90), math.radians(90)), False)
sketch8.addGeometry(Part.LineSegment(Vector(1000, 137, 0), Vector(675, 137, 0)), False)
sketch8.addGeometry(Part.ArcOfCircle(Part.Circle(Vector(675, 145, 0), Vector(0, 0, 1), 8), math.radians(90), math.radians(270)), False)
sketch8.addConstraint(Sketcher.Constraint("Tangent", 4, 2, 5, 2))
sketch8.addConstraint(Sketcher.Constraint("Tangent", 5, 1, 6, 1))
sketch8.addConstraint(Sketcher.Constraint("Tangent", 6, 2, 7, 2))
sketch8.addConstraint(Sketcher.Constraint("Tangent", 7, 1, 4, 1))
sketch8.addConstraint(Sketcher.Constraint("Tangent", 8, 2, 9, 2))
sketch8.addConstraint(Sketcher.Constraint("Tangent", 9, 1, 10, 1))
sketch8.addConstraint(Sketcher.Constraint("Tangent", 10, 2, 11, 2))
sketch8.addConstraint(Sketcher.Constraint("Tangent", 11, 1, 8, 1))
sketch8.addConstraint(Sketcher.Constraint("Horizontal", 4))
sketch8.addConstraint(Sketcher.Constraint("Horizontal", 6))
sketch8.addConstraint(Sketcher.Constraint("Horizontal", 8))
sketch8.addConstraint(Sketcher.Constraint("Horizontal", 10))
sketch8.addConstraint(Sketcher.Constraint("Equal", 0, 1))
sketch8.addConstraint(Sketcher.Constraint("Equal", 1, 2))
sketch8.addConstraint(Sketcher.Constraint("Equal", 2, 3))
sketch8.addConstraint(Sketcher.Constraint("Equal", 3, 5))
sketch8.addConstraint(Sketcher.Constraint("Equal", 7, 9))
sketch8.addConstraint(Sketcher.Constraint("Horizontal", 0, 3, 1, 3))
sketch8.addConstraint(Sketcher.Constraint("Horizontal", 1, 3, 2, 3))
sketch8.addConstraint(Sketcher.Constraint("Horizontal", 2, 3, 3, 3))
sketch8.addConstraint(Sketcher.Constraint("Horizontal", 3, 3, 5, 3))
sketch8.addConstraint(Sketcher.Constraint("Horizontal", 7, 3, 9, 3))
sketch8.addConstraint(Sketcher.Constraint("Diameter", 0, Q("15 mm")))
sketch8.addConstraint(Sketcher.Constraint("DistanceX", 4, 2, 4, 1, Q("450 mm")))
sketch8.addConstraint(Sketcher.Constraint("DistanceX", 8, 1, 8, 2, Q("325 mm")))
sketch8.addConstraint(Sketcher.Constraint("DistanceX", -1, 1, 0, 3, Q("35 mm")))
sketch8.addConstraint(Sketcher.Constraint("DistanceX", -1, 1, 1, 3, Q("350 mm")))
sketch8.addConstraint(Sketcher.Constraint("DistanceX", -1, 1, 2, 3, Q("310 mm")))
sketch8.addConstraint(Sketcher.Constraint("DistanceX", 3, 3, -1, 1, Q("10 mm")))
sketch8.addConstraint(Sketcher.Constraint("DistanceX", 5, 3, -1, 1, Q("960 mm")))
sketch8.addConstraint(Sketcher.Constraint("DistanceX", -1, 1, 9, 3, Q("1000 mm")))
sketch8.addConstraint(Sketcher.Constraint("DistanceY", -1, 1, 0, 3, Q("144.995667 mm")))
pocket3 = doc.addObject("PartDesign::Pocket", "Pocket002")
body.addObject(pocket3)
pocket3.Profile = sketch8
pocket3.Type = "TwoLengths"
pocket3.Length = 740
pocket3.Length2 = 40

# Sketch on XY plane
sketch9 = doc.addObject("Sketcher::SketchObject", "Sketch008")
body.addObject(sketch9)
sketch9.AttachmentSupport = (doc.XY_Plane, [""])
sketch9.MapMode = "FlatFace"
sketch9.AttachmentOffset = App.Placement(Vector(0, 0, 400), App.Rotation())
sketch9.addGeometry(Part.LineSegment(Vector(-72.5, 107.5, 0), Vector(-72.5, 163.6, 0)), False)
sketch9.addGeometry(Part.ArcOfCircle(Part.Circle(Vector(-60.1, 163.6, 0), Vector(0, 0, 1), 12.4), math.radians(90), math.radians(180)), False)
sketch9.addGeometry(Part.LineSegment(Vector(-60.1, 176, 0), Vector(-59.9, 176, 0)), False)
sketch9.addGeometry(Part.ArcOfCircle(Part.Circle(Vector(-59.9, 163.6, 0), Vector(0, 0, 1), 12.4), math.radians(0), math.radians(90)), False)
sketch9.addGeometry(Part.LineSegment(Vector(-47.5, 163.6, 0), Vector(-47.5, 107.5, 0)), False)
sketch9.addGeometry(Part.LineSegment(Vector(-47.5, 107.5, 0), Vector(-72.5, 107.5, 0)), False)
sketch9.addGeometry(Part.Circle(Vector(-60, 161, 0), Vector(0, 0, 1), 9.53), False)
sketch9.addGeometry(Part.LineSegment(Vector(345, 107.5, 0), Vector(345, 163.6, 0)), False)
sketch9.addGeometry(Part.ArcOfCircle(Part.Circle(Vector(357.4, 163.6, 0), Vector(0, 0, 1), 12.4), math.radians(90), math.radians(180)), False)
sketch9.addGeometry(Part.LineSegment(Vector(357.4, 176, 0), Vector(357.6, 176, 0)), False)
sketch9.addGeometry(Part.ArcOfCircle(Part.Circle(Vector(357.6, 163.6, 0), Vector(0, 0, 1), 12.4), math.radians(0), math.radians(90)), False)
sketch9.addGeometry(Part.LineSegment(Vector(370, 163.6, 0), Vector(370, 107.5, 0)), False)
sketch9.addGeometry(Part.LineSegment(Vector(370, 107.5, 0), Vector(345, 107.5, 0)), False)
sketch9.addGeometry(Part.Circle(Vector(357.5, 161, 0), Vector(0, 0, 1), 9.53), False)
sketch9.addConstraint(Sketcher.Constraint("Tangent", 0, 2, 1, 2))
sketch9.addConstraint(Sketcher.Constraint("Tangent", 1, 1, 2, 1))
sketch9.addConstraint(Sketcher.Constraint("Tangent", 2, 2, 3, 2))
sketch9.addConstraint(Sketcher.Constraint("Tangent", 3, 1, 4, 1))
sketch9.addConstraint(Sketcher.Constraint("Coincident", 4, 2, 5, 1))
sketch9.addConstraint(Sketcher.Constraint("Coincident", 5, 2, 0, 1))
sketch9.addConstraint(Sketcher.Constraint("Tangent", 7, 2, 8, 2))
sketch9.addConstraint(Sketcher.Constraint("Tangent", 8, 1, 9, 1))
sketch9.addConstraint(Sketcher.Constraint("Tangent", 9, 2, 10, 2))
sketch9.addConstraint(Sketcher.Constraint("Tangent", 10, 1, 11, 1))
sketch9.addConstraint(Sketcher.Constraint("Coincident", 11, 2, 12, 1))
sketch9.addConstraint(Sketcher.Constraint("Coincident", 12, 2, 7, 1))
sketch9.addConstraint(Sketcher.Constraint("Vertical", 0))
sketch9.addConstraint(Sketcher.Constraint("Horizontal", 2))
sketch9.addConstraint(Sketcher.Constraint("Vertical", 4))
sketch9.addConstraint(Sketcher.Constraint("Horizontal", 5))
sketch9.addConstraint(Sketcher.Constraint("Vertical", 7))
sketch9.addConstraint(Sketcher.Constraint("Horizontal", 9))
sketch9.addConstraint(Sketcher.Constraint("Vertical", 11))
sketch9.addConstraint(Sketcher.Constraint("Horizontal", 12))
sketch9.addConstraint(Sketcher.Constraint("Equal", 1, 3))
sketch9.addConstraint(Sketcher.Constraint("Equal", 3, 8))
sketch9.addConstraint(Sketcher.Constraint("Equal", 8, 10))
sketch9.addConstraint(Sketcher.Constraint("Equal", 6, 13))
sketch9.addConstraint(Sketcher.Constraint("Horizontal", 3, 3, 8, 3))
sketch9.addConstraint(Sketcher.Constraint("Horizontal", 6, 3, 13, 3))
sketch9.addConstraint(Sketcher.Constraint("Horizontal", 5, 2, 11, 2))
sketch9.addConstraint(Sketcher.Constraint("Equal", 2, 9))
sketch9.addConstraint(Sketcher.Constraint("Radius", 1, Q("12.4 mm")))
sketch9.addConstraint(Sketcher.Constraint("Diameter", 6, Q("19.05 mm")))
sketch9.addConstraint(Sketcher.Constraint("DistanceX", 5, 2, 5, 1, Q("25 mm")))
sketch9.addConstraint(Sketcher.Constraint("DistanceY", 0, 1, 0, 2, Q("56.1 mm")))
sketch9.addConstraint(Sketcher.Constraint("DistanceX", 6, 3, -1, 1, Q("60 mm")))
sketch9.addConstraint(Sketcher.Constraint("DistanceX", -1, 1, 7, 2, Q("345 mm")))
sketch9.addConstraint(Sketcher.Constraint("DistanceX", 0, 2, 13, 3, Q("430 mm")))
sketch9.addConstraint(Sketcher.Constraint("DistanceY", 6, 3, 1, 1, Q("15 mm")))
sketch9.addConstraint(Sketcher.Constraint("DistanceX", 1, 3, -1, 1, Q("60.1 mm")))
sketch9.addConstraint(Sketcher.Constraint("DistanceY", -1, 1, 1, 3, Q("163.595667 mm")))
pad6 = doc.addObject("PartDesign::Pad", "Pad005")
body.addObject(pad6)
pad6.Profile = sketch9
pad6.Type = "TwoLengths"
pad6.Length = 25
pad6.Length2 = 25
pad6.Reversed = True

# Sketch on YZ plane
sketch10 = doc.addObject("Sketcher::SketchObject", "Sketch009")
body.addObject(sketch10)
sketch10.AttachmentSupport = (doc.YZ_Plane, [""])
sketch10.MapMode = "FlatFace"
sketch10.AttachmentOffset = App.Placement(Vector(0, 0, -72.5), App.Rotation())
sketch10.addGeometry(Part.LineSegment(Vector(176, 384, 0), Vector(107, 384, 0)), False)
sketch10.addGeometry(Part.LineSegment(Vector(107, 384, 0), Vector(107, 416, 0)), False)
sketch10.addGeometry(Part.LineSegment(Vector(107, 416, 0), Vector(176, 416, 0)), False)
sketch10.addGeometry(Part.LineSegment(Vector(176, 416, 0), Vector(176, 384, 0)), False)
sketch10.addConstraint(Sketcher.Constraint("Coincident", 0, 2, 1, 1))
sketch10.addConstraint(Sketcher.Constraint("Coincident", 1, 2, 2, 1))
sketch10.addConstraint(Sketcher.Constraint("Coincident", 2, 2, 3, 1))
sketch10.addConstraint(Sketcher.Constraint("Coincident", 3, 2, 0, 1))
sketch10.addConstraint(Sketcher.Constraint("Horizontal", 0))
sketch10.addConstraint(Sketcher.Constraint("Vertical", 1))
sketch10.addConstraint(Sketcher.Constraint("Horizontal", 2))
sketch10.addConstraint(Sketcher.Constraint("Vertical", 3))
sketch10.addConstraint(Sketcher.Constraint("DistanceX", 0, 2, 0, 1, Q("68.5 mm")))
sketch10.addConstraint(Sketcher.Constraint("DistanceY", 1, 1, 1, 2, Q("31.75 mm")))
sketch10.addConstraint(Sketcher.Constraint("DistanceY", -1, 1, 0, 2, Q("384.125 mm")))
sketch10.addConstraint(Sketcher.Constraint("DistanceX", -1, 1, 0, 2, Q("107.495667 mm")))
pocket4 = doc.addObject("PartDesign::Pocket", "Pocket003")
body.addObject(pocket4)
pocket4.Profile = sketch10
pocket4.Type = "ThroughAll"
pocket4.Reversed = True

doc.recompute()
